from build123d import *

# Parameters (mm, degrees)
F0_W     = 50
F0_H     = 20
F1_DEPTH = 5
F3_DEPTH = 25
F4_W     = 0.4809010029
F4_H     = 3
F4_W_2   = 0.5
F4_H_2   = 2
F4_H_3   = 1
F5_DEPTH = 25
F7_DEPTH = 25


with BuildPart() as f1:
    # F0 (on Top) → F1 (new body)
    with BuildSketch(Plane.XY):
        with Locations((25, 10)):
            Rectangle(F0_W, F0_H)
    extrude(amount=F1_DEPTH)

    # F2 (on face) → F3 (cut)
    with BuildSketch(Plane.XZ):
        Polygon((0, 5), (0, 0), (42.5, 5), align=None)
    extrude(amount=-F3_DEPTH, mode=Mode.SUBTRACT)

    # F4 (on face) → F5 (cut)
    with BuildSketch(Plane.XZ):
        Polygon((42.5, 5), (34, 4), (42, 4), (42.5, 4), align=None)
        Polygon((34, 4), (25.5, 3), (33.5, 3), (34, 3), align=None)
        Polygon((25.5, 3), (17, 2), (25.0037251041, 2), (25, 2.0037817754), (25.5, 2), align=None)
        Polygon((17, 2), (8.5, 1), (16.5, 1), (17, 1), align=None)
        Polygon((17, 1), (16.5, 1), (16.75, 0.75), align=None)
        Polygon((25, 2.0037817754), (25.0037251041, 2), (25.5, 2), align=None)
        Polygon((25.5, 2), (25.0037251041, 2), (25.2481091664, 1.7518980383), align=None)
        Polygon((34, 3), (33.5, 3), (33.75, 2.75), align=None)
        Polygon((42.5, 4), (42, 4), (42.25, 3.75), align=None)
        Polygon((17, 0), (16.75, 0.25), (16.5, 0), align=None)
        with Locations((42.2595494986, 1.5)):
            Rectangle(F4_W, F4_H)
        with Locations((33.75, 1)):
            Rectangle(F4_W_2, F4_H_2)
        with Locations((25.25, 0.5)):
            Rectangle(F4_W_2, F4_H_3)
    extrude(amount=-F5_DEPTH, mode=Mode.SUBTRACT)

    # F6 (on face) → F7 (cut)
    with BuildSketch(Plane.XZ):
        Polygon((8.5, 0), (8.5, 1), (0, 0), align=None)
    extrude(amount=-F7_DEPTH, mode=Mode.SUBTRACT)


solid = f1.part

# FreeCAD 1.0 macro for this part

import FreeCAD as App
import Part
import Sketcher
Q = App.Units.Quantity


def add_polygon(sketch, points):
    """Adds a closed chain of lines whose ends are joined by coincident constraints."""
    first, n = sketch.GeometryCount, len(points)
    for a, b in zip(points, points[1:] + points[:1]):
        sketch.addGeometry(Part.LineSegment(App.Vector(*a, 0), App.Vector(*b, 0)), False)
    for i in range(n):
        sketch.addConstraint(Sketcher.Constraint("Coincident", first + i, 2, first + (i + 1) % n, 1))

doc = App.newDocument("Part")
body = doc.addObject("PartDesign::Body", "Body")

sketch1 = doc.addObject("Sketcher::SketchObject", "Sketch")
body.addObject(sketch1)
sketch1.AttachmentSupport = (doc.XY_Plane, [""])
sketch1.MapMode = "FlatFace"
add_polygon(sketch1, [(0, 20), (0, 0), (50, 0), (50, 20)])
sketch1.addConstraint(Sketcher.Constraint("Vertical", 0))
sketch1.addConstraint(Sketcher.Constraint("Horizontal", 1))
sketch1.addConstraint(Sketcher.Constraint("Vertical", 2))
sketch1.addConstraint(Sketcher.Constraint("Horizontal", 3))
sketch1.addConstraint(Sketcher.Constraint("Coincident", 0, 2, -1, 1))
sketch1.addConstraint(Sketcher.Constraint("DistanceX", 1, 1, 1, 2, Q("50 mm")))
sketch1.addConstraint(Sketcher.Constraint("DistanceY", 0, 2, 0, 1, Q("20 mm")))
pad1 = doc.addObject("PartDesign::Pad", "Pad")
body.addObject(pad1)
pad1.Profile = sketch1
pad1.Length = 5

sketch2 = doc.addObject("Sketcher::SketchObject", "Sketch001")
body.addObject(sketch2)
sketch2.AttachmentSupport = (doc.XZ_Plane, [""])
sketch2.MapMode = "FlatFace"
add_polygon(sketch2, [(0, 5), (0, 0), (42, 5)])
sketch2.addConstraint(Sketcher.Constraint("Vertical", 0))
sketch2.addConstraint(Sketcher.Constraint("Horizontal", 2))
sketch2.addConstraint(Sketcher.Constraint("Coincident", 0, 2, -1, 1))
sketch2.addConstraint(Sketcher.Constraint("DistanceY", 0, 2, 0, 1, Q("5 mm")))
sketch2.addConstraint(Sketcher.Constraint("DistanceX", 2, 2, 2, 1, Q("42.5 mm")))
pocket1 = doc.addObject("PartDesign::Pocket", "Pocket")
body.addObject(pocket1)
pocket1.Profile = sketch2
pocket1.Length = 25

sketch3 = doc.addObject("Sketcher::SketchObject", "Sketch002")
body.addObject(sketch3)
sketch3.AttachmentSupport = (doc.XZ_Plane, [""])
sketch3.MapMode = "FlatFace"
add_polygon(sketch3, [(42.5, 5), (34, 4), (42, 4), (42.25, 3.75), (42.5, 4)])
add_polygon(sketch3, [(34, 4), (25.5, 3), (33.5, 3), (33.75, 2.75), (34, 3)])
add_polygon(sketch3, [(25.5, 3), (17, 2), (25, 2), (25.25, 1.75), (25.5, 2)])
add_polygon(sketch3, [(17, 2), (8.5, 1), (16.5, 1), (16.75, 0.75), (17, 1)])
add_polygon(sketch3, [(17, 0), (16.75, 0.25), (16.5, 0)])
add_polygon(sketch3, [(42.02, 3), (42.02, 0), (42.5, 0), (42.5, 3)])
add_polygon(sketch3, [(33.5, 2), (33.5, 0), (34, 0), (34, 2)])
add_polygon(sketch3, [(25, 1), (25, 0), (25.5, 0), (25.5, 1)])
sketch3.addConstraint(Sketcher.Constraint("Horizontal", 1))
sketch3.addConstraint(Sketcher.Constraint("Vertical", 4))
sketch3.addConstraint(Sketcher.Constraint("Horizontal", 6))
sketch3.addConstraint(Sketcher.Constraint("Vertical", 9))
sketch3.addConstraint(Sketcher.Constraint("Horizontal", 11))
sketch3.addConstraint(Sketcher.Constraint("Vertical", 14))
sketch3.addConstraint(Sketcher.Constraint("Horizontal", 16))
sketch3.addConstraint(Sketcher.Constraint("Vertical", 19))
sketch3.addConstraint(Sketcher.Constraint("Horizontal", 22))
sketch3.addConstraint(Sketcher.Constraint("Vertical", 23))
sketch3.addConstraint(Sketcher.Constraint("Horizontal", 24))
sketch3.addConstraint(Sketcher.Constraint("Vertical", 25))
sketch3.addConstraint(Sketcher.Constraint("Horizontal", 26))
sketch3.addConstraint(Sketcher.Constraint("Vertical", 27))
sketch3.addConstraint(Sketcher.Constraint("Horizontal", 28))
sketch3.addConstraint(Sketcher.Constraint("Vertical", 29))
sketch3.addConstraint(Sketcher.Constraint("Horizontal", 30))
sketch3.addConstraint(Sketcher.Constraint("Vertical", 31))
sketch3.addConstraint(Sketcher.Constraint("Horizontal", 32))
sketch3.addConstraint(Sketcher.Constraint("Vertical", 33))
sketch3.addConstraint(Sketcher.Constraint("Horizontal", 34))
sketch3.addConstraint(Sketcher.Constraint("Coincident", 9, 2, 0, 2))
sketch3.addConstraint(Sketcher.Constraint("Coincident", 14, 2, 5, 2))
sketch3.addConstraint(Sketcher.Constraint("Coincident", 19, 2, 10, 2))
sketch3.addConstraint(Sketcher.Constraint("PointOnObject", 21, 2, -1))
sketch3.addConstraint(Sketcher.Constraint("PointOnObject", 23, 2, -1))
sketch3.addConstraint(Sketcher.Constraint("PointOnObject", 27, 2, -1))
sketch3.addConstraint(Sketcher.Constraint("PointOnObject", 31, 2, -1))
sketch3.addConstraint(Sketcher.Constraint("Perpendicular", 2, 3))
sketch3.addConstraint(Sketcher.Constraint("Parallel", 0, 5))
sketch3.addConstraint(Sketcher.Constraint("Perpendicular", 3, 7))
sketch3.addConstraint(Sketcher.Constraint("Perpendicular", 7, 8))
sketch3.addConstraint(Sketcher.Constraint("Parallel", 5, 10))
sketch3.addConstraint(Sketcher.Constraint("Parallel", 10, 15))
sketch3.addConstraint(Sketcher.Constraint("Perpendicular", 8, 17))
sketch3.addConstraint(Sketcher.Constraint("Perpendicular", 17, 18))
sketch3.addConstraint(Sketcher.Constraint("Perpendicular", 18, 20))
sketch3.addConstraint(Sketcher.Constraint("Perpendicular", 20, 21))
sketch3.addConstraint(Sketcher.Constraint("Horizontal", 1, 2, 3, 2))
sketch3.addConstraint(Sketcher.Constraint("Horizontal", 6, 2, 8, 2))
sketch3.addConstraint(Sketcher.Constraint("Horizontal", 11, 2, 13, 2))
sketch3.addConstraint(Sketcher.Constraint("Horizontal", 16, 2, 18, 2))
sketch3.addConstraint(Sketcher.Constraint("Horizontal", 14, 2, 25, 2))
sketch3.addConstraint(Sketcher.Constraint("Horizontal", 19, 2, 29, 2))
sketch3.addConstraint(Sketcher.Constraint("Horizontal", 18, 2, 33, 2))
sketch3.addConstraint(Sketcher.Constraint("Vertical", 17, 2, 20, 2))
sketch3.addConstraint(Sketcher.Constraint("Vertical", 16, 2, 21, 2))
sketch3.addConstraint(Sketcher.Constraint("Vertical", 19, 2, 22, 2))
sketch3.addConstraint(Sketcher.Constraint("Vertical", 4, 2, 24, 2))
sketch3.addConstraint(Sketcher.Constraint("Vertical", 6, 2, 27, 2))
sketch3.addConstraint(Sketcher.Constraint("Vertical", 9, 2, 28, 2))
sketch3.addConstraint(Sketcher.Constraint("Vertical", 14, 2, 32, 2))
sketch3.addConstraint(Sketcher.Constraint("Equal", 1, 6))
sketch3.addConstraint(Sketcher.Constraint("Equal", 6, 16))
sketch3.addConstraint(Sketcher.Constraint("Equal", 22, 28))
sketch3.addConstraint(Sketcher.Constraint("Equal", 30, 32))
sketch3.addConstraint(Sketcher.Constraint("Equal", 4, 9))
sketch3.addConstraint(Sketcher.Constraint("Equal", 9, 14))
sketch3.addConstraint(Sketcher.Constraint("Equal", 19, 31))
sketch3.addConstraint(Sketcher.Constraint("DistanceX", 1, 1, 1, 2, Q("8 mm")))
sketch3.addConstraint(Sketcher.Constraint("DistanceY", 4, 1, 4, 2, Q("1 mm")))
sketch3.addConstraint(Sketcher.Constraint("DistanceX", 22, 1, 22, 2, Q("0.5 mm")))
sketch3.addConstraint(Sketcher.Constraint("DistanceX", -1, 1, 0, 2, Q("34 mm")))
sketch3.addConstraint(Sketcher.Constraint("DistanceX", 24, 1, 24, 2, Q("0.480901 mm")))
sketch3.addConstraint(Sketcher.Constraint("DistanceY", -1, 1, 12, 2, Q("1.751898 mm")))
sketch3.addConstraint(Sketcher.Constraint("Distance", 12, Q("0.34825 mm")))
sketch3.addConstraint(Sketcher.Constraint("Distance", 13, Q("0.353558 mm")))
pocket2 = doc.addObject("PartDesign::Pocket", "Pocket001")
body.addObject(pocket2)
pocket2.Profile = sketch3
pocket2.Length = 25

sketch4 = doc.addObject("Sketcher::SketchObject", "Sketch003")
body.addObject(sketch4)
sketch4.AttachmentSupport = (doc.XZ_Plane, [""])
sketch4.MapMode = "FlatFace"
add_polygon(sketch4, [(8.5, 0), (8.5, 1), (0, 0)])
sketch4.addConstraint(Sketcher.Constraint("Vertical", 0))
sketch4.addConstraint(Sketcher.Constraint("Horizontal", 2))
sketch4.addConstraint(Sketcher.Constraint("Coincident", 1, 2, -1, 1))
sketch4.addConstraint(Sketcher.Constraint("DistanceY", 0, 1, 0, 2, Q("1 mm")))
sketch4.addConstraint(Sketcher.Constraint("DistanceX", 2, 1, 2, 2, Q("8.5 mm")))
pocket3 = doc.addObject("PartDesign::Pocket", "Pocket002")
body.addObject(pocket3)
pocket3.Profile = sketch4
pocket3.Length = 25

doc.recompute()
